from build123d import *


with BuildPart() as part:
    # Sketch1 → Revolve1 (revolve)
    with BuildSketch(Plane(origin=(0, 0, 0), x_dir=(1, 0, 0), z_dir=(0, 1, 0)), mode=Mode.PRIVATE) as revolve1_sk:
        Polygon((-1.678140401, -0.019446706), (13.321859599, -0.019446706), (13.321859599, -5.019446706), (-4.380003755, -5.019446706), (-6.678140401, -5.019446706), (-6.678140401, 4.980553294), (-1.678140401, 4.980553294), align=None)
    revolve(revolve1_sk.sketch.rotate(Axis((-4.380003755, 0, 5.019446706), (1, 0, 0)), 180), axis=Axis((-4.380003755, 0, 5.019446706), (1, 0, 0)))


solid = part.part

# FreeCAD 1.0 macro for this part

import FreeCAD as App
import Part
import Sketcher

V = App.Vector
Q = App.Units.Quantity

doc = App.newDocument("Part")
body = doc.addObject("PartDesign::Body", "Body")

# Sketch on XZ plane
sketch1 = body.newObject("Sketcher::SketchObject", "Sketch")
sketch1.AttachmentSupport = (doc.getObject("XZ_Plane"), [""])
sketch1.MapMode = "FlatFace"
sketch1.addGeometry([
    Part.LineSegment(V(13, 0, 0), V(-2, 0, 0)),  # 0
    Part.LineSegment(V(-2, 0, 0), V(-2, -5, 0)),  # 1
    Part.LineSegment(V(-2, -5, 0), V(-7, -5, 0)),  # 2
    Part.LineSegment(V(-7, -5, 0), V(-7, 5, 0)),  # 3
    Part.LineSegment(V(-7, 5, 0), V(13, 5, 0)),  # 4
    Part.LineSegment(V(13, 5, 0), V(13, 0, 0)),  # 5
], False)
sketch1.addGeometry(Part.LineSegment(V(-7, 5, 0), V(13, 5, 0)), True)  # axis
sketch1.addConstraint([
    Sketcher.Constraint("Coincident", 0, 2, 1, 1),
    Sketcher.Constraint("Coincident", 1, 2, 2, 1),
    Sketcher.Constraint("Coincident", 2, 2, 3, 1),
    Sketcher.Constraint("Coincident", 3, 2, 4, 1),
    Sketcher.Constraint("Coincident", 4, 2, 5, 1),
    Sketcher.Constraint("Coincident", 5, 2, 0, 1),
    Sketcher.Constraint("Horizontal", 0),
    Sketcher.Constraint("Vertical", 1),
    Sketcher.Constraint("Horizontal", 2),
    Sketcher.Constraint("Vertical", 3),
    Sketcher.Constraint("Horizontal", 4),
    Sketcher.Constraint("Vertical", 5),
    Sketcher.Constraint("Horizontal", 6),
    Sketcher.Constraint("Coincident", 6, 1, 3, 2),
    Sketcher.Constraint("Vertical", 5, 2, 6, 2),
    Sketcher.Constraint("Equal", 2, 1),
    Sketcher.Constraint("Equal", 1, 5),
    Sketcher.Constraint("DistanceX", 0, 2, 0, 1, Q("15 mm")),
    Sketcher.Constraint("DistanceX", 2, 2, 2, 1, Q("5 mm")),
    Sketcher.Constraint("DistanceX", 0, 2, -1, 1, Q("1.67814 mm")),
    Sketcher.Constraint("DistanceY", -1, 1, 0, 2, Q("0.019447 mm")),
])
revolution = body.newObject("PartDesign::Revolution", "Revolution")
revolution.Profile = sketch1
revolution.ReferenceAxis = (sketch1, ["Axis0"])
revolution.Angle = 360

doc.recompute()
